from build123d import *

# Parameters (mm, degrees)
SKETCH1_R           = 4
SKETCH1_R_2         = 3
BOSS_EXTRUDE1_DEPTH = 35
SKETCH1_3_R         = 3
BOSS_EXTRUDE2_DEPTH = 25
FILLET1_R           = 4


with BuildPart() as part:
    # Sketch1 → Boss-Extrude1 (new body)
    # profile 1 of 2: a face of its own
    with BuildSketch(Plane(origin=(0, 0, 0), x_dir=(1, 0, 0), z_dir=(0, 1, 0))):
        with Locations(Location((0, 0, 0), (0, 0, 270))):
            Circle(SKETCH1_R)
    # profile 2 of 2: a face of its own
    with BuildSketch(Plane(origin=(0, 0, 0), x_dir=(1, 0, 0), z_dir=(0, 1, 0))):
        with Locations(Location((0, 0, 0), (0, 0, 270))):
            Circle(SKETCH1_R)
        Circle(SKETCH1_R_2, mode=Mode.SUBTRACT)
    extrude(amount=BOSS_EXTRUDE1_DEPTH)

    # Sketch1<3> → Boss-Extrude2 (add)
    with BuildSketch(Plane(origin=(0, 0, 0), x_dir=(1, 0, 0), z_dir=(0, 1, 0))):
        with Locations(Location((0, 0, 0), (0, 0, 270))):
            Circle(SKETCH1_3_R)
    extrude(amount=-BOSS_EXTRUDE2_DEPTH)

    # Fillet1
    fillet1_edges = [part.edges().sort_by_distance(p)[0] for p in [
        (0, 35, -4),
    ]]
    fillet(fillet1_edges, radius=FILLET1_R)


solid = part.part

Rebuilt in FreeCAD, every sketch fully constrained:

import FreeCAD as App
import Part
import Sketcher


def edges_at(feature, points):
    """Names of the edges that pass closest to the given points."""
    edges = feature.Shape.Edges
    near = lambda p: min(range(len(edges)), key=lambda i: edges[i].distToShape(Part.Vertex(*p))[0])
    return sorted({f"Edge{near(p) + 1}" for p in points})

doc = App.newDocument("Part")
body = doc.addObject("PartDesign::Body", "Body")

sketch1 = body.newObject("Sketcher::SketchObject", "Sketch")
sketch1.AttachmentSupport = (doc.getObject("XZ_Plane"), [""])
sketch1.MapMode = "FlatFace"
sketch1.addGeometry(Part.Circle(App.Vector(0, 0, 0), App.Vector(0, 0, 1), 4), False)
sketch1.addConstraint(Sketcher.Constraint("Coincident", 0, 3, -1, 1))
sketch1.addConstraint(Sketcher.Constraint("Diameter", 0, 8.0))
pad1 = body.newObject("PartDesign::Pad", "Pad")
pad1.Profile = sketch1
pad1.Length = 35
pad1.Reversed = True

sketch2 = body.newObject("Sketcher::SketchObject", "Sketch001")
sketch2.AttachmentSupport = (doc.getObject("XZ_Plane"), [""])
sketch2.MapMode = "FlatFace"
sketch2.addGeometry(Part.Circle(App.Vector(0, 0, 0), App.Vector(0, 0, 1), 3), False)
sketch2.addConstraint(Sketcher.Constraint("Coincident", 0, 3, -1, 1))
sketch2.addConstraint(Sketcher.Constraint("Diameter", 0, 6.0))
pad2 = body.newObject("PartDesign::Pad", "Pad001")
pad2.Profile = sketch2
pad2.Length = 25
doc.recompute()

fillet = body.newObject("PartDesign::Fillet", "Fillet")
fillet.Base = (pad2, edges_at(pad2, [(0, 35, -4)]))
fillet.Radius = 4

doc.recompute()
